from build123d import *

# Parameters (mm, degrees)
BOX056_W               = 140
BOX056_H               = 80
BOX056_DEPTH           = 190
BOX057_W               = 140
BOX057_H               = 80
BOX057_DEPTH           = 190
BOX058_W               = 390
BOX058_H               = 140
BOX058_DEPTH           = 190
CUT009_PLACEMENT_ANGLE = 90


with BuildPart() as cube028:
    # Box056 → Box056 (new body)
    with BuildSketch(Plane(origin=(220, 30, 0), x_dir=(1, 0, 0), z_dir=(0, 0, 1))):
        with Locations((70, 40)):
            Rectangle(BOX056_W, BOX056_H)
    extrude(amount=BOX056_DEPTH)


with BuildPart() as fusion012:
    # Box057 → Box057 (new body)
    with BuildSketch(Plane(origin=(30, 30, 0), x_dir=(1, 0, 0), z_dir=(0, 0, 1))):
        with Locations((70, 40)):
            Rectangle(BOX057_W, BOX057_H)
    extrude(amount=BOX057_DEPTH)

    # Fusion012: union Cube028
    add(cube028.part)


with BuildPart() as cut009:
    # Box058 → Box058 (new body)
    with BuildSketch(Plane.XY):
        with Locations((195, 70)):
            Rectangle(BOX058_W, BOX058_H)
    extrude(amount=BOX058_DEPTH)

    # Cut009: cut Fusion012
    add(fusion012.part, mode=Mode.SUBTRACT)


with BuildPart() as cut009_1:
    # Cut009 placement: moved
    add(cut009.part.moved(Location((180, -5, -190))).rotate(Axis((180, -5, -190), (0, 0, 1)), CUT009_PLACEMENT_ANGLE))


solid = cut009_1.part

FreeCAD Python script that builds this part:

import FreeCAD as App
import Part
import Sketcher
Q = App.Units.Quantity


def add_polygon(sketch, points):
    """Adds a closed chain of lines whose ends are joined by coincident constraints."""
    first, n = sketch.GeometryCount, len(points)
    for a, b in zip(points, points[1:] + points[:1]):
        sketch.addGeometry(Part.LineSegment(App.Vector(*a, 0), App.Vector(*b, 0)), False)
    for i in range(n):
        sketch.addConstraint(Sketcher.Constraint("Coincident", first + i, 2, first + (i + 1) % n, 1))

doc = App.newDocument("Part")
body = doc.addObject("PartDesign::Body", "Body")

sketch1 = body.newObject("Sketcher::SketchObject", "Sketch")
sketch1.AttachmentSupport = (doc.getObject("XY_Plane"), [""])
sketch1.MapMode = "FlatFace"
add_polygon(sketch1, [(220, 110), (220, 30), (360, 30), (360, 110)])
sketch1.addConstraint([
    Sketcher.Constraint("Vertical", 0),
    Sketcher.Constraint("Horizontal", 1),
    Sketcher.Constraint("Vertical", 2),
    Sketcher.Constraint("Horizontal", 3),
    Sketcher.Constraint("DistanceX", 1, 1, 1, 2, Q("140 mm")),
    Sketcher.Constraint("DistanceY", 0, 2, 0, 1, Q("80 mm")),
    Sketcher.Constraint("DistanceX", -1, 1, 0, 2, Q("220 mm")),
    Sketcher.Constraint("DistanceY", -1, 1, 0, 2, Q("30 mm")),
])
pad1 = body.newObject("PartDesign::Pad", "Pad")
pad1.Profile = sketch1
pad1.Length = 190
body2 = doc.addObject("PartDesign::Body", "Body001")
body2.AllowCompound = True

sketch2 = body2.newObject("Sketcher::SketchObject", "Sketch001")
sketch2.AttachmentSupport = (doc.getObject("XY_Plane001"), [""])
sketch2.MapMode = "FlatFace"
add_polygon(sketch2, [(30, 110), (30, 30), (170, 30), (170, 110)])
sketch2.addConstraint([
    Sketcher.Constraint("Vertical", 0),
    Sketcher.Constraint("Horizontal", 1),
    Sketcher.Constraint("Vertical", 2),
    Sketcher.Constraint("Horizontal", 3),
    Sketcher.Constraint("DistanceX", 1, 1, 1, 2, Q("140 mm")),
    Sketcher.Constraint("DistanceY", 0, 2, 0, 1, Q("80 mm")),
    Sketcher.Constraint("DistanceX", -1, 1, 0, 2, Q("30 mm")),
    Sketcher.Constraint("DistanceY", -1, 1, 0, 2, Q("30 mm")),
])
pad2 = body2.newObject("PartDesign::Pad", "Pad001")
pad2.Profile = sketch2
pad2.Length = 190
doc.recompute()

boolean = body2.newObject("PartDesign::Boolean", "Boolean")
boolean.Type = "Fuse"
boolean.addObjects([body])
body3 = doc.addObject("PartDesign::Body", "Body002")

sketch3 = body3.newObject("Sketcher::SketchObject", "Sketch002")
sketch3.AttachmentSupport = (doc.getObject("XY_Plane002"), [""])
sketch3.MapMode = "FlatFace"
add_polygon(sketch3, [(0, 140), (0, 0), (390, 0), (390, 140)])
sketch3.addConstraint([
    Sketcher.Constraint("Vertical", 0),
    Sketcher.Constraint("Horizontal", 1),
    Sketcher.Constraint("Vertical", 2),
    Sketcher.Constraint("Horizontal", 3),
    Sketcher.Constraint("Coincident", 0, 2, -1, 1),
    Sketcher.Constraint("DistanceX", 1, 1, 1, 2, Q("390 mm")),
    Sketcher.Constraint("DistanceY", 0, 2, 0, 1, Q("140 mm")),
])
pad3 = body3.newObject("PartDesign::Pad", "Pad002")
pad3.Profile = sketch3
pad3.Length = 190
doc.recompute()

boolean2 = body3.newObject("PartDesign::Boolean", "Boolean001")
boolean2.Type = "Cut"
boolean2.addObjects([body2])
body4 = doc.addObject("PartDesign::Body", "Body003")
doc.recompute()

body3.Placement = App.Placement(App.Vector(180, -5, -190), App.Rotation(App.Vector(0, 0, 1), 90))
boolean3 = body4.newObject("PartDesign::Boolean", "Boolean002")
boolean3.Type = "Fuse"
boolean3.addObjects([body3])

doc.recompute()
